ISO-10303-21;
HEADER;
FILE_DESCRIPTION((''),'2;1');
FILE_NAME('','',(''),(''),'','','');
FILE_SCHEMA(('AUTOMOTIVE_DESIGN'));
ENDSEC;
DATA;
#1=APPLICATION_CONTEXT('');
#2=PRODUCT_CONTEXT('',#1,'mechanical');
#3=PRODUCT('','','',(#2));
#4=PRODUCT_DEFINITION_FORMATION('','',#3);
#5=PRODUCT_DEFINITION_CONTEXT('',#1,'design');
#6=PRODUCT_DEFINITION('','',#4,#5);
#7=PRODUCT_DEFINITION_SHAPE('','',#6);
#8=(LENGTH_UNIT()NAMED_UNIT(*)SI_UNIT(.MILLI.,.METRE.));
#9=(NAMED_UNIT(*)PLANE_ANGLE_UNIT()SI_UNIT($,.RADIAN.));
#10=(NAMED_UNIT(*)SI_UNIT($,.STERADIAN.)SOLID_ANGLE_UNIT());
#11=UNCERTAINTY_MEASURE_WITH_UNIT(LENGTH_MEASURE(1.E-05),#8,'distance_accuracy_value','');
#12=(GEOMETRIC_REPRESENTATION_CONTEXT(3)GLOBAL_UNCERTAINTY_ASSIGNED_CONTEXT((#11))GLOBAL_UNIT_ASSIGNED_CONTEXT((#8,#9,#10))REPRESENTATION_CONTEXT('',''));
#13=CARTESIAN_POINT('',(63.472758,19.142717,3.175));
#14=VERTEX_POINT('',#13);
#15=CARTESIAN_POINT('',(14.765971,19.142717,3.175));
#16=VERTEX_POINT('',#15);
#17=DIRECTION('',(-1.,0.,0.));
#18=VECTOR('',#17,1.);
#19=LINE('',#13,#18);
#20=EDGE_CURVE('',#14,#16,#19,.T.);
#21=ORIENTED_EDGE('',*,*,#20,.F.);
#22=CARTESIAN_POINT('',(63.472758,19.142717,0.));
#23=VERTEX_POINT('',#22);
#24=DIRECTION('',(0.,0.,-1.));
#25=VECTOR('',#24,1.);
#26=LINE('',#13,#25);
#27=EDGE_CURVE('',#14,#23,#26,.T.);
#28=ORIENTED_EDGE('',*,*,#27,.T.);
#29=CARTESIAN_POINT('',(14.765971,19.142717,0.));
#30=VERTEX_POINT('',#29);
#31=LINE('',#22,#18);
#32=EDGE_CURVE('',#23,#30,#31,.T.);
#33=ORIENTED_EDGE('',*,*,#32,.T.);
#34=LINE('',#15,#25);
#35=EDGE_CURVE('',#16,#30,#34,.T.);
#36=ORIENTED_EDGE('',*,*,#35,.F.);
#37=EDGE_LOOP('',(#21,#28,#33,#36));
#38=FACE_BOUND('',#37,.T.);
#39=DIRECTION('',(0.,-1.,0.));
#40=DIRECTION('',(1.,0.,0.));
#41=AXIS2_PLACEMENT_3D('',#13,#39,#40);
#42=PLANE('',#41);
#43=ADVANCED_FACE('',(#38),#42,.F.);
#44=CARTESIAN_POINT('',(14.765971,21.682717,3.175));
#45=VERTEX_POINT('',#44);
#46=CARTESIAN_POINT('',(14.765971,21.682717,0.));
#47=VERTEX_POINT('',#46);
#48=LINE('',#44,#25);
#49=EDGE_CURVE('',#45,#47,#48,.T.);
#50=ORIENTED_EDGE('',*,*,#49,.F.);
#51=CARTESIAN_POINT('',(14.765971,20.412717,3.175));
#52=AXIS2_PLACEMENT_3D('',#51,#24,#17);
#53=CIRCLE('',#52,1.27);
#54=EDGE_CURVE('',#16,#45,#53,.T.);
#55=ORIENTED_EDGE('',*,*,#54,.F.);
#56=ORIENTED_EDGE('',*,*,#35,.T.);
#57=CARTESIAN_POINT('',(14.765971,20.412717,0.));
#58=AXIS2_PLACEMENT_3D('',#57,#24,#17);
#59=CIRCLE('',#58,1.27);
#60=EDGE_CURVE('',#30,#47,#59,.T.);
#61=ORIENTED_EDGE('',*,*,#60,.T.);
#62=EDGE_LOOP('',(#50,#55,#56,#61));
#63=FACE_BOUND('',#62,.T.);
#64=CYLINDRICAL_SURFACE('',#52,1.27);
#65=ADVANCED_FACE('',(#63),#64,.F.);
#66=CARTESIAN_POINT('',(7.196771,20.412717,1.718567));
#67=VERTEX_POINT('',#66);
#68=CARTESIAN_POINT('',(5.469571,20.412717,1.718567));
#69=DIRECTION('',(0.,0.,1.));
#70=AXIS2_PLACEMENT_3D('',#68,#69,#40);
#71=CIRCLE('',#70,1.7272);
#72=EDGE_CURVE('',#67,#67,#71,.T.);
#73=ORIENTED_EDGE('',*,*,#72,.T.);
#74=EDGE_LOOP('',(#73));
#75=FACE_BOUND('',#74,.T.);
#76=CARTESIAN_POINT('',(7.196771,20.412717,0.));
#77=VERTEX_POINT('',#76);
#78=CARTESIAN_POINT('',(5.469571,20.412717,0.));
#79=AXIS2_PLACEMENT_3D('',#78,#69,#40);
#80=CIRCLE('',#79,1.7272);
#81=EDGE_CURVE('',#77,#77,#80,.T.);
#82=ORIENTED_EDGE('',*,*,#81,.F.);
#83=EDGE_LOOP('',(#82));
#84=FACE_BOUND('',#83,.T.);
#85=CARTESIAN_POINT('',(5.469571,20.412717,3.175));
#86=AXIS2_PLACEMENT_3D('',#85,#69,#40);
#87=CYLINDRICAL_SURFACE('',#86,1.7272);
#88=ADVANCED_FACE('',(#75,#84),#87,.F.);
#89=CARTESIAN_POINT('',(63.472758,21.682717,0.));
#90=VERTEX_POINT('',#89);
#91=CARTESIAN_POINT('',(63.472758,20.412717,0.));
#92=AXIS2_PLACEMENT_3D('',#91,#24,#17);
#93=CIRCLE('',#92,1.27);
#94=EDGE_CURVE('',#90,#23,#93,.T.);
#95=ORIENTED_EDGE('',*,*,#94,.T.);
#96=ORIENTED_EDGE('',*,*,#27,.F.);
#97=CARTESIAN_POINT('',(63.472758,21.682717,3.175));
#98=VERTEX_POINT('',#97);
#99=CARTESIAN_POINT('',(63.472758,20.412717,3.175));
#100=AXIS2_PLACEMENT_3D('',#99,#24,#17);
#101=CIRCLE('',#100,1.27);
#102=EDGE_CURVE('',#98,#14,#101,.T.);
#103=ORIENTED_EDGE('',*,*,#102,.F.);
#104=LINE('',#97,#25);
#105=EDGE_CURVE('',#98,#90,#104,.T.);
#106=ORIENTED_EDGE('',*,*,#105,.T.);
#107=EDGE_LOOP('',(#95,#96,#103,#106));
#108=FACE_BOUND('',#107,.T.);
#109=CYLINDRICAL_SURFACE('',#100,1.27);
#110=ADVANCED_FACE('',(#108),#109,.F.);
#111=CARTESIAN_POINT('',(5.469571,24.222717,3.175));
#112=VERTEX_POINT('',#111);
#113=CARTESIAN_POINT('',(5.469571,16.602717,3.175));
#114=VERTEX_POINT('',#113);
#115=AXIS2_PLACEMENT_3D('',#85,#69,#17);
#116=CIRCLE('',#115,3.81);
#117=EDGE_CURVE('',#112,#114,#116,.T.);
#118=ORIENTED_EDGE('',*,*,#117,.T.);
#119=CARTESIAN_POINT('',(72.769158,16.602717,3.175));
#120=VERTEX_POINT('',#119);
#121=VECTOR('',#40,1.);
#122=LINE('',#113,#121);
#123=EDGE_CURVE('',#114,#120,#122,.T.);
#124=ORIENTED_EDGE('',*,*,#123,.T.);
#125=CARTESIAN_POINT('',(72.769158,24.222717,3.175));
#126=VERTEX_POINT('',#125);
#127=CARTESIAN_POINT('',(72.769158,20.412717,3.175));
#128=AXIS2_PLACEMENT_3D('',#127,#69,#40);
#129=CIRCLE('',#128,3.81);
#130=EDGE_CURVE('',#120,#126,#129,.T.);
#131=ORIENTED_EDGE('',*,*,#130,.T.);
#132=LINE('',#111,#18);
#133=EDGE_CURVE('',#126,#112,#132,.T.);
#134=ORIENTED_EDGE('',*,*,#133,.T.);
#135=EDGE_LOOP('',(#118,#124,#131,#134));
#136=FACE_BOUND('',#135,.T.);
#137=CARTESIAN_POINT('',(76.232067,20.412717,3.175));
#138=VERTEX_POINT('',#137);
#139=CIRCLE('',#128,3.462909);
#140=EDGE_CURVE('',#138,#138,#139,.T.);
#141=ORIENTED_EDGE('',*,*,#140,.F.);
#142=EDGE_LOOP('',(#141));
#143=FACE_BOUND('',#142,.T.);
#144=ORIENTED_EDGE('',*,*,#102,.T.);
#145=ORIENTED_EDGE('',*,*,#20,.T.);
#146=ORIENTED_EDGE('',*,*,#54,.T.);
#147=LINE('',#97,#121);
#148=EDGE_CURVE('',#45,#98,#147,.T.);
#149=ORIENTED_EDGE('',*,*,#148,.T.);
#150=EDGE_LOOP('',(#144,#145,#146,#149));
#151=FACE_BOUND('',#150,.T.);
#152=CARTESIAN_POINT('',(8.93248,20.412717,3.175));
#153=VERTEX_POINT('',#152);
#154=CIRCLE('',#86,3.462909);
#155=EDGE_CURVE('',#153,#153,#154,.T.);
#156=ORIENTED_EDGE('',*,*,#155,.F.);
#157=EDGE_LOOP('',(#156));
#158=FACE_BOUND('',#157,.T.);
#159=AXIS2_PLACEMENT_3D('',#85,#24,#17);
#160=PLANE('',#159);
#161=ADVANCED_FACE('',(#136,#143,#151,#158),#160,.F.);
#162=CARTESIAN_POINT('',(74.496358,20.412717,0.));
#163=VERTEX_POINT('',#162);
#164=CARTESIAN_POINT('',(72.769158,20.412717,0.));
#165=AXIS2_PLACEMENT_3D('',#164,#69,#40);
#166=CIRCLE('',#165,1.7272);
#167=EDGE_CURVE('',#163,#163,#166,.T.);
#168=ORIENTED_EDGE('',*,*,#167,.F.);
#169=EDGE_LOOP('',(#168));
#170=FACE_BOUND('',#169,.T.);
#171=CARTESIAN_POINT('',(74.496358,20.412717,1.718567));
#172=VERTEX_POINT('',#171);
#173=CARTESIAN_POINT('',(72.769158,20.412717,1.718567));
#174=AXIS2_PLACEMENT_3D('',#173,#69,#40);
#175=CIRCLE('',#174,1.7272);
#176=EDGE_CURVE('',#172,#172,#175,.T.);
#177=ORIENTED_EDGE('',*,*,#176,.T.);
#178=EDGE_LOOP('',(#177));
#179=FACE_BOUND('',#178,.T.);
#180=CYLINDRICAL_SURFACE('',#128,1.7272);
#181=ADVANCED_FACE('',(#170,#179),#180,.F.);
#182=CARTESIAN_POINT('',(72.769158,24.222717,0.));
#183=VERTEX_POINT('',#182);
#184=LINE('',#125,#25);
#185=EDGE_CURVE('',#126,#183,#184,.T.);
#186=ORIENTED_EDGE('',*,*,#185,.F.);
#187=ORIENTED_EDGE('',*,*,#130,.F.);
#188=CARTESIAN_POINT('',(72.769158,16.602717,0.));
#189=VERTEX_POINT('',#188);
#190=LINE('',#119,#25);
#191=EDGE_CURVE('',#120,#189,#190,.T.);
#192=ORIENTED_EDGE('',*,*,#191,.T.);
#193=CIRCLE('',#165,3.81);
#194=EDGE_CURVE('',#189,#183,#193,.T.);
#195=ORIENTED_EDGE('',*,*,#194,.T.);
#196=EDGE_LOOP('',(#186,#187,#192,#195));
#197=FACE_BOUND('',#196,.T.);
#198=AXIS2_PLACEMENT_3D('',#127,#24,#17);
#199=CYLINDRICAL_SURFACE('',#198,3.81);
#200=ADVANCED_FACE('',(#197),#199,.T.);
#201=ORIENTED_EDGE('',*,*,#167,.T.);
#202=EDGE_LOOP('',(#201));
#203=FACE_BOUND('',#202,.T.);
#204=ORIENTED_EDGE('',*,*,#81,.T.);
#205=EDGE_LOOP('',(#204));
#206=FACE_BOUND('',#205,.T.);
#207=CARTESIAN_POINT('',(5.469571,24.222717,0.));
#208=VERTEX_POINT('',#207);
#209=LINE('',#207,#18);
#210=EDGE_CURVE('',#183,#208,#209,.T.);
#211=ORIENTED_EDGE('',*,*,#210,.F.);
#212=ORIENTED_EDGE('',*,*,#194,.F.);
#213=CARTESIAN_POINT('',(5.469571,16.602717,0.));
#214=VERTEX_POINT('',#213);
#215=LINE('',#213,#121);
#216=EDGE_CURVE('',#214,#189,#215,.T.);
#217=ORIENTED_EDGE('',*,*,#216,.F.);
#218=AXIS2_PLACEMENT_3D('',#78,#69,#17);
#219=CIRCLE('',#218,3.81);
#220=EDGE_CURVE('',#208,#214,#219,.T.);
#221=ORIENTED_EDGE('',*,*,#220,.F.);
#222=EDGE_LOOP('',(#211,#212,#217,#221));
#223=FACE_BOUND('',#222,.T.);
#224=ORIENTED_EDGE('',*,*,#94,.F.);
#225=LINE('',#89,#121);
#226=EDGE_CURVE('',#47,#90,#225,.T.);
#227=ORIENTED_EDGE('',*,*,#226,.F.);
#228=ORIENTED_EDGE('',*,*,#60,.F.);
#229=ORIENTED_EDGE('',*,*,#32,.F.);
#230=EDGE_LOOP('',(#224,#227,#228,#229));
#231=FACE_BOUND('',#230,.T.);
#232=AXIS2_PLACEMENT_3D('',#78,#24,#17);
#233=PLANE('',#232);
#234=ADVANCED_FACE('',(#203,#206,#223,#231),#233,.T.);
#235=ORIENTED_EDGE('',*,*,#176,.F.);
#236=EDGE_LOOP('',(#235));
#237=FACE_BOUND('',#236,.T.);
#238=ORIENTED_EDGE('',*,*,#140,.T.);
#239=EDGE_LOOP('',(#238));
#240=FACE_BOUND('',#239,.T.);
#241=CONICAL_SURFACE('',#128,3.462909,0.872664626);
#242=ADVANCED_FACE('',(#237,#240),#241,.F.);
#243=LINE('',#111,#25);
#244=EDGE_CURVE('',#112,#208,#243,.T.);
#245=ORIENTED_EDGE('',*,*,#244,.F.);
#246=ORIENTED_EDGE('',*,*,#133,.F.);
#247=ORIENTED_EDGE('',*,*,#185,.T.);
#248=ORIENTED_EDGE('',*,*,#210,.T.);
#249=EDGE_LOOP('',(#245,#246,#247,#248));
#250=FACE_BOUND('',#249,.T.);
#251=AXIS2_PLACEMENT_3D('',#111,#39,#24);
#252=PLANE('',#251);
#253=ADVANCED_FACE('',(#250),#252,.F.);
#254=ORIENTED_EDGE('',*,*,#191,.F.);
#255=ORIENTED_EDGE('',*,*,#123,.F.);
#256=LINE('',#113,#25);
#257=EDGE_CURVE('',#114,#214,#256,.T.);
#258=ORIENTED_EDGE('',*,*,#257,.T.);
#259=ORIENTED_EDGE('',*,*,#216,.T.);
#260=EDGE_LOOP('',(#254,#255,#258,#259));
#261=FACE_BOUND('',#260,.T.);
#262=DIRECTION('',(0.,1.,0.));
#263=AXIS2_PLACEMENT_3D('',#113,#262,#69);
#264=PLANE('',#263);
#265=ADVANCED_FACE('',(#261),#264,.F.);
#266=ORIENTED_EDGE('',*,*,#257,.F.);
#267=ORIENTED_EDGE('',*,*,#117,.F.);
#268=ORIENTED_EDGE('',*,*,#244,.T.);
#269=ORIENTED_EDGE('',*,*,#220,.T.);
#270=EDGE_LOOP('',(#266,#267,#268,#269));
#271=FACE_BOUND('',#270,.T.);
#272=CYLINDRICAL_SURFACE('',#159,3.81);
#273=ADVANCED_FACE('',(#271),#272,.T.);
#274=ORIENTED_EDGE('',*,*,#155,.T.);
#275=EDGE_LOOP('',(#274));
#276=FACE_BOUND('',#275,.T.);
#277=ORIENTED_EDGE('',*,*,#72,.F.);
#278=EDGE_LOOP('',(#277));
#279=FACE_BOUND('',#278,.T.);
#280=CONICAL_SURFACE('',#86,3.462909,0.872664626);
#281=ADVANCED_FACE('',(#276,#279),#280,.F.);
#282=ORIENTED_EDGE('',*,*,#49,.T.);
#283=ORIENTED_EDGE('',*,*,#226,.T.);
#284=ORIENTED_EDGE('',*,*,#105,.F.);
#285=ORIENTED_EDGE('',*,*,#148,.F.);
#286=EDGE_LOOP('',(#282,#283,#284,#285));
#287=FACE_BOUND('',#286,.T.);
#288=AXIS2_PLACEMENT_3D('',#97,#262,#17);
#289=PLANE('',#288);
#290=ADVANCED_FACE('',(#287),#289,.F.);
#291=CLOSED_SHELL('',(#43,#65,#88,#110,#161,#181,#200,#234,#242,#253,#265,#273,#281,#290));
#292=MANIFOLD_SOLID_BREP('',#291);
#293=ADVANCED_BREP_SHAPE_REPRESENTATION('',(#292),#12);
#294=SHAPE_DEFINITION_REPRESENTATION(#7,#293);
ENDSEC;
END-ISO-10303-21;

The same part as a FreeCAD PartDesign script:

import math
import FreeCAD as App
import Part
import Sketcher
Q = App.Units.Quantity

doc = App.newDocument("Part")
body = doc.addObject("PartDesign::Body", "Body")

# Sketch on XY plane
sketch1 = doc.addObject("Sketcher::SketchObject", "Sketch")
body.addObject(sketch1)
sketch1.AttachmentSupport = (doc.XY_Plane, [""])
sketch1.MapMode = "FlatFace"
sketch1.addGeometry([
    Part.LineSegment(App.Vector(5.469571, 16.602717, 0), App.Vector(72.769158, 16.602717, 0)),
    Part.ArcOfCircle(Part.Circle(App.Vector(72.769158, 20.412717, 0), App.Vector(0, 0, 1), 3.81), math.radians(-90), math.radians(90)),
    Part.LineSegment(App.Vector(72.769158, 24.222717, 0), App.Vector(5.469571, 24.222717, 0)),
    Part.ArcOfCircle(Part.Circle(App.Vector(5.469571, 20.412717, 0), App.Vector(0, 0, 1), 3.81), math.radians(90), math.radians(270)),
], False)
sketch1.addConstraint([
    Sketcher.Constraint("Tangent", 0, 2, 1, 1),
    Sketcher.Constraint("Tangent", 1, 2, 2, 1),
    Sketcher.Constraint("Tangent", 2, 2, 3, 1),
    Sketcher.Constraint("Tangent", 3, 2, 0, 1),
    Sketcher.Constraint("Horizontal", 0),
    Sketcher.Constraint("Horizontal", 2),
    Sketcher.Constraint("Radius", 1, Q("0.15 in")),
    Sketcher.Constraint("DistanceX", 0, 1, 0, 2, Q("67.299587 mm")),
    Sketcher.Constraint("DistanceX", -1, 1, 3, 3, Q("5.469571 mm")),
    Sketcher.Constraint("DistanceY", -1, 1, 1, 3, Q("20.412717 mm")),
])
pad1 = doc.addObject("PartDesign::Pad", "Pad")
body.addObject(pad1)
pad1.Profile = sketch1
pad1.Length = Q("0.125 in")

# Sketch on XY plane
sketch2 = doc.addObject("Sketcher::SketchObject", "Sketch001")
body.addObject(sketch2)
sketch2.AttachmentSupport = (doc.XY_Plane, [""])
sketch2.MapMode = "FlatFace"
sketch2.AttachmentOffset = App.Placement(App.Vector(0, 0, 0.125 * 25.4), App.Rotation())
sketch2.addGeometry([
    Part.Circle(App.Vector(5.469571, 20.412717, 0), App.Vector(0, 0, 1), 1.7272),
    Part.Circle(App.Vector(72.769158, 20.412717, 0), App.Vector(0, 0, 1), 1.7272),
], False)
sketch2.addConstraint([
    Sketcher.Constraint("Equal", 0, 1),
    Sketcher.Constraint("Horizontal", 0, 3, 1, 3),
    Sketcher.Constraint("Diameter", 0, Q("0.136 in")),
    Sketcher.Constraint("DistanceX", -1, 1, 0, 3, Q("5.469571 mm")),
    Sketcher.Constraint("DistanceY", -1, 1, 0, 3, Q("20.412717 mm")),
    Sketcher.Constraint("DistanceX", -1, 1, 1, 3, Q("72.769158 mm")),
])
doc.recompute()
hole = doc.addObject("PartDesign::Hole", "Hole")
body.addObject(hole)
hole.Profile = sketch2
hole.ThreadType = "None"
hole.Diameter = Q("0.136 in")
hole.DepthType = "ThroughAll"
hole.HoleCutType = "Countersink"
hole.HoleCutDiameter = 6.925818
hole.HoleCutCountersinkAngle = 100

# Sketch on XY plane
sketch3 = doc.addObject("Sketcher::SketchObject", "Sketch002")
body.addObject(sketch3)
sketch3.AttachmentSupport = (doc.XY_Plane, [""])
sketch3.MapMode = "FlatFace"
sketch3.addGeometry([
    Part.LineSegment(App.Vector(14.765971, 21.682717, 0), App.Vector(63.472758, 21.682717, 0)),
    Part.ArcOfCircle(Part.Circle(App.Vector(63.472758, 20.412717, 0), App.Vector(0, 0, 1), 1.27), math.radians(-90), math.radians(90)),
    Part.LineSegment(App.Vector(63.472758, 19.142717, 0), App.Vector(14.765971, 19.142717, 0)),
    Part.ArcOfCircle(Part.Circle(App.Vector(14.765971, 20.412717, 0), App.Vector(0, 0, 1), 1.27), math.radians(90), math.radians(270)),
], False)
sketch3.addConstraint([
    Sketcher.Constraint("Tangent", 0, 2, 1, 2),
    Sketcher.Constraint("Tangent", 1, 1, 2, 1),
    Sketcher.Constraint("Tangent", 2, 2, 3, 2),
    Sketcher.Constraint("Tangent", 3, 1, 0, 1),
    Sketcher.Constraint("Horizontal", 0),
    Sketcher.Constraint("Horizontal", 2),
    Sketcher.Constraint("Radius", 1, Q("0.05 in")),
    Sketcher.Constraint("DistanceX", 0, 1, 0, 2, Q("48.706787 mm")),
    Sketcher.Constraint("DistanceX", -1, 1, 3, 3, Q("14.765971 mm")),
    Sketcher.Constraint("DistanceY", -1, 1, 1, 3, Q("20.412717 mm")),
])
pocket1 = doc.addObject("PartDesign::Pocket", "Pocket")
body.addObject(pocket1)
pocket1.Profile = sketch3
pocket1.Type = "ThroughAll"
pocket1.Reversed = True

doc.recompute()
